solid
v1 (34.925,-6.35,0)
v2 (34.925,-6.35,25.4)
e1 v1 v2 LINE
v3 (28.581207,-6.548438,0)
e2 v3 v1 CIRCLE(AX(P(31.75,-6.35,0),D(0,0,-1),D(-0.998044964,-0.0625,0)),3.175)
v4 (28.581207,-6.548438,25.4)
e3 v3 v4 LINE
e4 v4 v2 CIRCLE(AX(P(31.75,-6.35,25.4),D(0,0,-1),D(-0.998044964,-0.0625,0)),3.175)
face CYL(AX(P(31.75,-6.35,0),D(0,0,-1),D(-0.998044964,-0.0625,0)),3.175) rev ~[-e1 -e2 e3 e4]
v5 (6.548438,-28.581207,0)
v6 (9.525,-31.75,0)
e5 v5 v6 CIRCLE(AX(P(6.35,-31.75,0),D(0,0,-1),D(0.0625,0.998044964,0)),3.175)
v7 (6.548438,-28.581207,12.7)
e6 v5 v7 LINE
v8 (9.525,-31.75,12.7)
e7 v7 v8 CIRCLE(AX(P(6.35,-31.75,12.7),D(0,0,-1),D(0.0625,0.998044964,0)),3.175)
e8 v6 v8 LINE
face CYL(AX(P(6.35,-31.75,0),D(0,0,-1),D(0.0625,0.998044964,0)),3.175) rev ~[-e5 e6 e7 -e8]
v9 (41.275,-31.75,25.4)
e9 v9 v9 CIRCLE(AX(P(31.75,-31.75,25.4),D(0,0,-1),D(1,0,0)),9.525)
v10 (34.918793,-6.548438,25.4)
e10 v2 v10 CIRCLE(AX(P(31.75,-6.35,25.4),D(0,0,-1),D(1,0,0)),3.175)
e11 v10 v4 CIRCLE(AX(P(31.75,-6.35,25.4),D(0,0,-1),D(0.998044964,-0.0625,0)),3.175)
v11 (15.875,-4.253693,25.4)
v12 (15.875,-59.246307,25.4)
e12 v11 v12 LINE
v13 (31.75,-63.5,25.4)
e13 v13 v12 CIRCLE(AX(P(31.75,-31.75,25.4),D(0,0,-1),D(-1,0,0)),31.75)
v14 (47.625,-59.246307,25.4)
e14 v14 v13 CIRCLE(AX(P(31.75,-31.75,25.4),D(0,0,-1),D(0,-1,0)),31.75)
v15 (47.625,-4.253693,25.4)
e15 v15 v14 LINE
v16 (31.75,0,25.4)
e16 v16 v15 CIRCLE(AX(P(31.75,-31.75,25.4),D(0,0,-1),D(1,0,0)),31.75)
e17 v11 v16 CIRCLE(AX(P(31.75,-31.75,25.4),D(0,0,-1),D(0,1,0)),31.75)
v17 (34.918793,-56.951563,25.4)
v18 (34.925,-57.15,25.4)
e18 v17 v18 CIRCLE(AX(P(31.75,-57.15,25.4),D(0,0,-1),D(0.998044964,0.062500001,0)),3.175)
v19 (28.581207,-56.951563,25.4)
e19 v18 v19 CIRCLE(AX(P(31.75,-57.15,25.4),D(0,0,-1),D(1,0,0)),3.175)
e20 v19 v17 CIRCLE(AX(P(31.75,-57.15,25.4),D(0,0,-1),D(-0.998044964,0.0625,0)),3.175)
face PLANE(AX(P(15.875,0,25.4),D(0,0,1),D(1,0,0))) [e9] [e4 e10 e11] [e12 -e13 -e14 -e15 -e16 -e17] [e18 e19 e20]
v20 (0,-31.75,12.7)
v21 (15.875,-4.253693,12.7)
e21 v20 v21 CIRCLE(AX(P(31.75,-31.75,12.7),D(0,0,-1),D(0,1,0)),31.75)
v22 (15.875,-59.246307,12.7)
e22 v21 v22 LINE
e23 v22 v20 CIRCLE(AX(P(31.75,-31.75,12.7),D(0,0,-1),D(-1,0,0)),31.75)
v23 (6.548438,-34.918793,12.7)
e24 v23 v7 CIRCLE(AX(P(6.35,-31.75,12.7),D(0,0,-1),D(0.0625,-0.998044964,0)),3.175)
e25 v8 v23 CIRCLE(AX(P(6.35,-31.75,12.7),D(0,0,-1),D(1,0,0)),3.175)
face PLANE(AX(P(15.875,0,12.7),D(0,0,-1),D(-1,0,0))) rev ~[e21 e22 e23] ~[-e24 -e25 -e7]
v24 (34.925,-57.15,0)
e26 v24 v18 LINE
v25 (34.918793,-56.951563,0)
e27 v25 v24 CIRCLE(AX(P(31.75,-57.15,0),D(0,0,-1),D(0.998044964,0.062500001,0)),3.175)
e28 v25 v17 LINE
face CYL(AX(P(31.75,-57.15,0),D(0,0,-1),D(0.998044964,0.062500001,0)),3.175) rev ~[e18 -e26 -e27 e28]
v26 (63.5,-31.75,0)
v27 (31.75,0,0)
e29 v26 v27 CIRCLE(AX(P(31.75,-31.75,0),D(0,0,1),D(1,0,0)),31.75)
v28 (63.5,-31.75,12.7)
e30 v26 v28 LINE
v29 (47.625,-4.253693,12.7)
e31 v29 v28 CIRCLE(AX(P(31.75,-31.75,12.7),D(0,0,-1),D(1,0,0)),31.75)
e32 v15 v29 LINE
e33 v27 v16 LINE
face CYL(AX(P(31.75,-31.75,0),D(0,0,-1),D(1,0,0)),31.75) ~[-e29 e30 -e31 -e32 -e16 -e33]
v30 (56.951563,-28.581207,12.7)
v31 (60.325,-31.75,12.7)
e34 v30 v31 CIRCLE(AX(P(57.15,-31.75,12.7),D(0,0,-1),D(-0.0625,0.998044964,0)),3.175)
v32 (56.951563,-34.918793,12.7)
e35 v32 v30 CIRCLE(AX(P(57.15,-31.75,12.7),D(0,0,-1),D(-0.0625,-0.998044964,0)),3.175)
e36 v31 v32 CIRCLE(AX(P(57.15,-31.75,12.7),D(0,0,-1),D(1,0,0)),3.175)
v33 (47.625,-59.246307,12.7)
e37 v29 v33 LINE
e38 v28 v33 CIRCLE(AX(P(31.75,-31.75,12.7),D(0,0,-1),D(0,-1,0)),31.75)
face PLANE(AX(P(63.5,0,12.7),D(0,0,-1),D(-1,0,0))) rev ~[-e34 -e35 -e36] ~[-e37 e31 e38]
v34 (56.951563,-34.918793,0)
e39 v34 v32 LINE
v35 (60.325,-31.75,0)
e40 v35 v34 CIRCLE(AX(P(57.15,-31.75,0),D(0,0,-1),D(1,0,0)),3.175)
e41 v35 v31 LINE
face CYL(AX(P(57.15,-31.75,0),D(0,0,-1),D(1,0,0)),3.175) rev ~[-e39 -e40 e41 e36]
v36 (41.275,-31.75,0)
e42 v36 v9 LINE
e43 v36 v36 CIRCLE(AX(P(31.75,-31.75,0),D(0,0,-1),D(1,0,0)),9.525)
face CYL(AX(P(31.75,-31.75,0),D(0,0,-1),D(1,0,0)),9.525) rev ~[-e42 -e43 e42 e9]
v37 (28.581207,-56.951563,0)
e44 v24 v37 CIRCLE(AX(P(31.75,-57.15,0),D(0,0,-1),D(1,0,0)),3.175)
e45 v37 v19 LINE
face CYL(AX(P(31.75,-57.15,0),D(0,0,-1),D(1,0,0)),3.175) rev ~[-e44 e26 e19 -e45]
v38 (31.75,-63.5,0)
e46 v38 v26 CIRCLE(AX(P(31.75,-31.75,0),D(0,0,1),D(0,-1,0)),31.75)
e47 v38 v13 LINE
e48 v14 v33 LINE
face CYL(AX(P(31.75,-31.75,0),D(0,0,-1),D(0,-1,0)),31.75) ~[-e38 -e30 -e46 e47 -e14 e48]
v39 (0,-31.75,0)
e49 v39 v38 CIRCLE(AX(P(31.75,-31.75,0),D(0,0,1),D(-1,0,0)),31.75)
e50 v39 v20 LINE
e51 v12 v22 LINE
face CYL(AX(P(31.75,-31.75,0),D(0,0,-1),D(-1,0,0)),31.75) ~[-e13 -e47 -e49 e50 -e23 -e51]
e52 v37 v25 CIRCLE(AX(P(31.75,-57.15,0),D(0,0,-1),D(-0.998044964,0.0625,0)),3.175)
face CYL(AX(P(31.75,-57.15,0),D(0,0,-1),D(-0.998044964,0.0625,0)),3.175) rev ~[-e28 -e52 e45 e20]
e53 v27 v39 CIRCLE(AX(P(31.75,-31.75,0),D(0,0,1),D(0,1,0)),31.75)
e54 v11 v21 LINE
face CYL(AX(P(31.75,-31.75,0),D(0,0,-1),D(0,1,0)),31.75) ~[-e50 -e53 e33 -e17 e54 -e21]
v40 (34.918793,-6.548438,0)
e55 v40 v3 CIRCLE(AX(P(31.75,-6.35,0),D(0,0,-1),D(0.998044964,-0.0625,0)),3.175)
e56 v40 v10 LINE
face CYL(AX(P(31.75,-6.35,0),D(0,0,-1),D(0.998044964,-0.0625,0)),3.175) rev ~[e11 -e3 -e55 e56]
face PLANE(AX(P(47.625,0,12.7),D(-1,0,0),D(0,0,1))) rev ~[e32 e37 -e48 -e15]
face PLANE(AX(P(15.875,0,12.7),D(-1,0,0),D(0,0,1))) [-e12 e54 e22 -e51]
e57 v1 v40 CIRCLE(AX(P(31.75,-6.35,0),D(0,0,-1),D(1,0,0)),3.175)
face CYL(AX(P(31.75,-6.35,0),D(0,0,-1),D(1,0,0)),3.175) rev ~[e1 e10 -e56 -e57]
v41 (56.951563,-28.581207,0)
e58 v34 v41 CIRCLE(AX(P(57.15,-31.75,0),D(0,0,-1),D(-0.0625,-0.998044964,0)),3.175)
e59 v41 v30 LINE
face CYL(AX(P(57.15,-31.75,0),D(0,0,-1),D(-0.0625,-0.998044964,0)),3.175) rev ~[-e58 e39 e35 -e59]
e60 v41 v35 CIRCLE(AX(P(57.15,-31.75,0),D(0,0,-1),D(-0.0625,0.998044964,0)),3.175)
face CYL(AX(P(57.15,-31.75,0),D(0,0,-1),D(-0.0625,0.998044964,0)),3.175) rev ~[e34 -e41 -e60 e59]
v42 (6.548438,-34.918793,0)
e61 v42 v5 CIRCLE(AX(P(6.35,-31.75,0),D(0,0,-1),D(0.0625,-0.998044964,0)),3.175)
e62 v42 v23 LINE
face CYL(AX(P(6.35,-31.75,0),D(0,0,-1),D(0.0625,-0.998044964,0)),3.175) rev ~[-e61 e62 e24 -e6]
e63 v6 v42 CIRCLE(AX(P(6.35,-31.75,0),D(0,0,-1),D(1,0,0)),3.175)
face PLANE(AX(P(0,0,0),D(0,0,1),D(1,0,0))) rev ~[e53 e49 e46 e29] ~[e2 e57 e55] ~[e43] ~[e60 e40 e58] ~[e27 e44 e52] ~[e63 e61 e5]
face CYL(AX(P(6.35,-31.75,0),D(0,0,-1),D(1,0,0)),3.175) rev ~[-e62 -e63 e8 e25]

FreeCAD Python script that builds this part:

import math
import FreeCAD as App
import Part
import Sketcher
from FreeCAD import Vector
Q = App.Units.Quantity

doc = App.newDocument("Part")
params = doc.addObject("Spreadsheet::Sheet", "Params")
for row, (alias, value) in enumerate([
    ("sketch1_width", "2.5 in"),
    ("sketch1_height", "0.5 in"),
    ("sketch1_width2", "1.25 in"),
    ("pad1_length", "2.5 in"),
    ("sketch2_radius", "1.25 in"),
    ("sketch3_diameter", "0.75 in"),
    ("sketch3_radius", "0.125 in"),
], start=1):
    params.set(f"A{row}", alias)
    params.set(f"B{row}", "=" + value)
    params.setAlias(f"B{row}", alias)

body = doc.addObject("PartDesign::Body", "Body")

# Sketch on XZ plane
sketch1 = body.newObject("Sketcher::SketchObject", "Sketch")
sketch1.AttachmentSupport = (doc.getObject("XZ_Plane"), [""])
sketch1.MapMode = "FlatFace"
sketch1.addGeometry(Part.LineSegment(Vector(0, 13, 0), Vector(0, 0, 0)), False)
sketch1.addGeometry(Part.LineSegment(Vector(0, 0, 0), Vector(64, 0, 0)), False)
sketch1.addGeometry(Part.LineSegment(Vector(64, 0, 0), Vector(64, 13, 0)), False)
sketch1.addGeometry(Part.LineSegment(Vector(64, 13, 0), Vector(48, 13, 0)), False)
sketch1.addGeometry(Part.LineSegment(Vector(48, 13, 0), Vector(48, 25, 0)), False)
sketch1.addGeometry(Part.LineSegment(Vector(48, 25, 0), Vector(16, 25, 0)), False)
sketch1.addGeometry(Part.LineSegment(Vector(16, 25, 0), Vector(16, 13, 0)), False)
sketch1.addGeometry(Part.LineSegment(Vector(16, 13, 0), Vector(0, 13, 0)), False)
sketch1.addConstraint(Sketcher.Constraint("Coincident", 0, 2, 1, 1))
sketch1.addConstraint(Sketcher.Constraint("Coincident", 1, 2, 2, 1))
sketch1.addConstraint(Sketcher.Constraint("Coincident", 2, 2, 3, 1))
sketch1.addConstraint(Sketcher.Constraint("Coincident", 3, 2, 4, 1))
sketch1.addConstraint(Sketcher.Constraint("Coincident", 4, 2, 5, 1))
sketch1.addConstraint(Sketcher.Constraint("Coincident", 5, 2, 6, 1))
sketch1.addConstraint(Sketcher.Constraint("Coincident", 6, 2, 7, 1))
sketch1.addConstraint(Sketcher.Constraint("Coincident", 7, 2, 0, 1))
sketch1.addConstraint(Sketcher.Constraint("Vertical", 0))
sketch1.addConstraint(Sketcher.Constraint("Horizontal", 1))
sketch1.addConstraint(Sketcher.Constraint("Vertical", 2))
sketch1.addConstraint(Sketcher.Constraint("Horizontal", 3))
sketch1.addConstraint(Sketcher.Constraint("Vertical", 4))
sketch1.addConstraint(Sketcher.Constraint("Horizontal", 5))
sketch1.addConstraint(Sketcher.Constraint("Vertical", 6))
sketch1.addConstraint(Sketcher.Constraint("Horizontal", 7))
sketch1.addConstraint(Sketcher.Constraint("Coincident", 0, 2, -1, 1))
sketch1.addConstraint(Sketcher.Constraint("Horizontal", 3, 2, 6, 2))
sketch1.addConstraint(Sketcher.Constraint("Equal", 3, 7))
sketch1.addConstraint(Sketcher.Constraint("Equal", 2, 4))
sketch1.addConstraint(Sketcher.Constraint("DistanceX", 1, 1, 1, 2, Q("2.5 in")))
sketch1.addConstraint(Sketcher.Constraint("DistanceY", 0, 2, 0, 1, Q("0.5 in")))
sketch1.addConstraint(Sketcher.Constraint("DistanceX", 5, 2, 5, 1, Q("1.25 in")))
sketch1.setExpression("Constraints[20]", "Params.sketch1_width")
sketch1.setExpression("Constraints[21]", "Params.sketch1_height")
sketch1.setExpression("Constraints[22]", "Params.sketch1_width2")
pad1 = body.newObject("PartDesign::Pad", "Pad")
pad1.Profile = sketch1
pad1.setExpression("Length", "Params.pad1_length")

# Sketch on XY plane
sketch2 = body.newObject("Sketcher::SketchObject", "Sketch001")
sketch2.AttachmentSupport = (doc.getObject("XY_Plane"), [""])
sketch2.MapMode = "FlatFace"
sketch2.addGeometry(Part.ArcOfCircle(Part.Circle(Vector(32, -32, 0), Vector(0, 0, 1), 32), math.radians(180), math.radians(270)), False)
sketch2.addGeometry(Part.LineSegment(Vector(32, -64, 0), Vector(0, -64, 0)), False)
sketch2.addGeometry(Part.LineSegment(Vector(0, -64, 0), Vector(0, -32, 0)), False)
sketch2.addGeometry(Part.ArcOfCircle(Part.Circle(Vector(32, -32, 0), Vector(0, 0, 1), 32), math.radians(-90), math.radians(0)), False)
sketch2.addGeometry(Part.LineSegment(Vector(64, -32, 0), Vector(64, -64, 0)), False)
sketch2.addGeometry(Part.LineSegment(Vector(64, -64, 0), Vector(32, -64, 0)), False)
sketch2.addGeometry(Part.LineSegment(Vector(0, 0, 0), Vector(32, 0, 0)), False)
sketch2.addGeometry(Part.ArcOfCircle(Part.Circle(Vector(32, -32, 0), Vector(0, 0, 1), 32), math.radians(90), math.radians(180)), False)
sketch2.addGeometry(Part.LineSegment(Vector(0, -32, 0), Vector(0, 0, 0)), False)
sketch2.addGeometry(Part.LineSegment(Vector(64, 0, 0), Vector(64, -32, 0)), False)
sketch2.addGeometry(Part.ArcOfCircle(Part.Circle(Vector(32, -32, 0), Vector(0, 0, 1), 32), math.radians(0), math.radians(90)), False)
sketch2.addGeometry(Part.LineSegment(Vector(32, 0, 0), Vector(64, 0, 0)), False)
sketch2.addConstraint(Sketcher.Constraint("Tangent", 0, 2, 1, 1))
sketch2.addConstraint(Sketcher.Constraint("Coincident", 1, 2, 2, 1))
sketch2.addConstraint(Sketcher.Constraint("Tangent", 2, 2, 0, 1))
sketch2.addConstraint(Sketcher.Constraint("Tangent", 3, 2, 4, 1))
sketch2.addConstraint(Sketcher.Constraint("Coincident", 4, 2, 5, 1))
sketch2.addConstraint(Sketcher.Constraint("Tangent", 5, 2, 3, 1))
sketch2.addConstraint(Sketcher.Constraint("Tangent", 6, 2, 7, 1))
sketch2.addConstraint(Sketcher.Constraint("Tangent", 7, 2, 8, 1))
sketch2.addConstraint(Sketcher.Constraint("Coincident", 8, 2, 6, 1))
sketch2.addConstraint(Sketcher.Constraint("Tangent", 9, 2, 10, 1))
sketch2.addConstraint(Sketcher.Constraint("Tangent", 10, 2, 11, 1))
sketch2.addConstraint(Sketcher.Constraint("Coincident", 11, 2, 9, 1))
sketch2.addConstraint(Sketcher.Constraint("Horizontal", 1))
sketch2.addConstraint(Sketcher.Constraint("Vertical", 2))
sketch2.addConstraint(Sketcher.Constraint("Vertical", 4))
sketch2.addConstraint(Sketcher.Constraint("Horizontal", 5))
sketch2.addConstraint(Sketcher.Constraint("Horizontal", 6))
sketch2.addConstraint(Sketcher.Constraint("Vertical", 8))
sketch2.addConstraint(Sketcher.Constraint("Vertical", 9))
sketch2.addConstraint(Sketcher.Constraint("Horizontal", 11))
sketch2.addConstraint(Sketcher.Constraint("Coincident", 8, 2, -1, 1))
sketch2.addConstraint(Sketcher.Constraint("Coincident", 3, 3, 0, 3))
sketch2.addConstraint(Sketcher.Constraint("Coincident", 7, 3, 0, 3))
sketch2.addConstraint(Sketcher.Constraint("Coincident", 10, 3, 0, 3))
sketch2.addConstraint(Sketcher.Constraint("Equal", 0, 3))
sketch2.addConstraint(Sketcher.Constraint("Equal", 3, 7))
sketch2.addConstraint(Sketcher.Constraint("Equal", 7, 10))
sketch2.addConstraint(Sketcher.Constraint("Radius", 0, Q("1.25 in")))
sketch2.setExpression("Constraints[27]", "Params.sketch2_radius")
pocket1 = body.newObject("PartDesign::Pocket", "Pocket")
pocket1.Profile = sketch2
pocket1.Type = "ThroughAll"
pocket1.Reversed = True

# Sketch on XY plane
sketch3 = body.newObject("Sketcher::SketchObject", "Sketch002")
sketch3.AttachmentSupport = (doc.getObject("XY_Plane"), [""])
sketch3.MapMode = "FlatFace"
sketch3.addGeometry(Part.ArcOfCircle(Part.Circle(Vector(31.75, -57.15, 0), Vector(0, 0, 1), 3.17), math.radians(0), math.radians(3.58)), False)
sketch3.addGeometry(Part.ArcOfCircle(Part.Circle(Vector(31.75, -57.15, 0), Vector(0, 0, 1), 3.17), math.radians(176), math.radians(360)), False)
sketch3.addGeometry(Part.ArcOfCircle(Part.Circle(Vector(31.75, -57.15, 0), Vector(0, 0, 1), 3.17), math.radians(4), math.radians(176)), False)
sketch3.addGeometry(Part.ArcOfCircle(Part.Circle(Vector(6.35, -31.75, 0), Vector(0, 0, 1), 3.17), math.radians(-86), math.radians(0)), False)
sketch3.addGeometry(Part.ArcOfCircle(Part.Circle(Vector(6.35, -31.75, 0), Vector(0, 0, 1), 3.17), math.radians(86), math.radians(274)), False)
sketch3.addGeometry(Part.ArcOfCircle(Part.Circle(Vector(6.35, -31.75, 0), Vector(0, 0, 1), 3.17), math.radians(0), math.radians(86)), False)
sketch3.addGeometry(Part.ArcOfCircle(Part.Circle(Vector(31.75, -6.35, 0), Vector(0, 0, 1), 3.17), math.radians(-3.58), math.radians(0)), False)
sketch3.addGeometry(Part.ArcOfCircle(Part.Circle(Vector(31.75, -6.35, 0), Vector(0, 0, 1), 3.17), math.radians(-176), math.radians(-4)), False)
sketch3.addGeometry(Part.ArcOfCircle(Part.Circle(Vector(31.75, -6.35, 0), Vector(0, 0, 1), 3.17), math.radians(0), math.radians(184)), False)
sketch3.addGeometry(Part.ArcOfCircle(Part.Circle(Vector(57.15, -31.75, 0), Vector(0, 0, 1), 3.17), math.radians(0), math.radians(94)), False)
sketch3.addGeometry(Part.ArcOfCircle(Part.Circle(Vector(57.15, -31.75, 0), Vector(0, 0, 1), 3.17), math.radians(-94), math.radians(0)), False)
sketch3.addGeometry(Part.ArcOfCircle(Part.Circle(Vector(57.15, -31.75, 0), Vector(0, 0, 1), 3.17), math.radians(94), math.radians(266)), False)
sketch3.addGeometry(Part.Circle(Vector(31.75, -31.75, 0), Vector(0, 0, 1), 9.53), False)
sketch3.addConstraint(Sketcher.Constraint("Tangent", 0, 1, 1, 2))
sketch3.addConstraint(Sketcher.Constraint("Tangent", 1, 1, 2, 2))
sketch3.addConstraint(Sketcher.Constraint("Tangent", 2, 1, 0, 2))
sketch3.addConstraint(Sketcher.Constraint("Tangent", 3, 1, 4, 2))
sketch3.addConstraint(Sketcher.Constraint("Tangent", 4, 1, 5, 2))
sketch3.addConstraint(Sketcher.Constraint("Tangent", 5, 1, 3, 2))
sketch3.addConstraint(Sketcher.Constraint("Tangent", 6, 1, 7, 2))
sketch3.addConstraint(Sketcher.Constraint("Tangent", 7, 1, 8, 2))
sketch3.addConstraint(Sketcher.Constraint("Tangent", 8, 1, 6, 2))
sketch3.addConstraint(Sketcher.Constraint("Tangent", 9, 1, 10, 2))
sketch3.addConstraint(Sketcher.Constraint("Tangent", 10, 1, 11, 2))
sketch3.addConstraint(Sketcher.Constraint("Tangent", 11, 1, 9, 2))
sketch3.addConstraint(Sketcher.Constraint("Equal", 2, 3))
sketch3.addConstraint(Sketcher.Constraint("Equal", 5, 6))
sketch3.addConstraint(Sketcher.Constraint("Equal", 8, 9))
sketch3.addConstraint(Sketcher.Constraint("Horizontal", 5, 3, 9, 3))
sketch3.addConstraint(Sketcher.Constraint("Horizontal", 11, 3, 12, 3))
sketch3.addConstraint(Sketcher.Constraint("Horizontal", 2, 3, 0, 1))
sketch3.addConstraint(Sketcher.Constraint("Horizontal", 1, 1, 2, 1))
sketch3.addConstraint(Sketcher.Constraint("Horizontal", 12, 3, 5, 1))
sketch3.addConstraint(Sketcher.Constraint("Horizontal", 6, 1, 7, 1))
sketch3.addConstraint(Sketcher.Constraint("Horizontal", 7, 3, 8, 1))
sketch3.addConstraint(Sketcher.Constraint("Horizontal", 5, 1, 9, 1))
sketch3.addConstraint(Sketcher.Constraint("Horizontal", 3, 1, 10, 1))
sketch3.addConstraint(Sketcher.Constraint("Horizontal", 4, 1, 11, 1))
sketch3.addConstraint(Sketcher.Constraint("Vertical", 2, 3, 6, 3))
sketch3.addConstraint(Sketcher.Constraint("Vertical", 8, 3, 12, 3))
sketch3.addConstraint(Sketcher.Constraint("Vertical", 3, 1, 4, 1))
sketch3.addConstraint(Sketcher.Constraint("Vertical", 2, 1, 6, 1))
sketch3.addConstraint(Sketcher.Constraint("Diameter", 12, Q("0.75 in")))
sketch3.addConstraint(Sketcher.Constraint("Radius", 0, Q("0.125 in")))
sketch3.addConstraint(Sketcher.Constraint("DistanceX", 3, 3, 1, 3, Q("1 in")))
sketch3.addConstraint(Sketcher.Constraint("DistanceY", 1, 3, 3, 3, Q("1 in")))
sketch3.addConstraint(Sketcher.Constraint("DistanceY", 3, 3, 6, 3, Q("1 in")))
sketch3.addConstraint(Sketcher.Constraint("DistanceX", 0, 3, 9, 3, Q("1 in")))
sketch3.addConstraint(Sketcher.Constraint("DistanceX", -1, 1, 0, 3, Q("1.25 in")))
sketch3.addConstraint(Sketcher.Constraint("DistanceY", 0, 3, -1, 1, Q("2.25 in")))
sketch3.addConstraint(Sketcher.Constraint("DistanceX", 3, 1, 1, 1, 22.03277))
sketch3.addConstraint(Sketcher.Constraint("DistanceY", 1, 1, 3, 1, 22.03277))
sketch3.setExpression("Constraints[29]", "Params.sketch3_diameter")
sketch3.setExpression("Constraints[30]", "Params.sketch3_radius")
pocket2 = body.newObject("PartDesign::Pocket", "Pocket001")
pocket2.Profile = sketch3
pocket2.Type = "ThroughAll"
pocket2.Reversed = True

doc.recompute()
